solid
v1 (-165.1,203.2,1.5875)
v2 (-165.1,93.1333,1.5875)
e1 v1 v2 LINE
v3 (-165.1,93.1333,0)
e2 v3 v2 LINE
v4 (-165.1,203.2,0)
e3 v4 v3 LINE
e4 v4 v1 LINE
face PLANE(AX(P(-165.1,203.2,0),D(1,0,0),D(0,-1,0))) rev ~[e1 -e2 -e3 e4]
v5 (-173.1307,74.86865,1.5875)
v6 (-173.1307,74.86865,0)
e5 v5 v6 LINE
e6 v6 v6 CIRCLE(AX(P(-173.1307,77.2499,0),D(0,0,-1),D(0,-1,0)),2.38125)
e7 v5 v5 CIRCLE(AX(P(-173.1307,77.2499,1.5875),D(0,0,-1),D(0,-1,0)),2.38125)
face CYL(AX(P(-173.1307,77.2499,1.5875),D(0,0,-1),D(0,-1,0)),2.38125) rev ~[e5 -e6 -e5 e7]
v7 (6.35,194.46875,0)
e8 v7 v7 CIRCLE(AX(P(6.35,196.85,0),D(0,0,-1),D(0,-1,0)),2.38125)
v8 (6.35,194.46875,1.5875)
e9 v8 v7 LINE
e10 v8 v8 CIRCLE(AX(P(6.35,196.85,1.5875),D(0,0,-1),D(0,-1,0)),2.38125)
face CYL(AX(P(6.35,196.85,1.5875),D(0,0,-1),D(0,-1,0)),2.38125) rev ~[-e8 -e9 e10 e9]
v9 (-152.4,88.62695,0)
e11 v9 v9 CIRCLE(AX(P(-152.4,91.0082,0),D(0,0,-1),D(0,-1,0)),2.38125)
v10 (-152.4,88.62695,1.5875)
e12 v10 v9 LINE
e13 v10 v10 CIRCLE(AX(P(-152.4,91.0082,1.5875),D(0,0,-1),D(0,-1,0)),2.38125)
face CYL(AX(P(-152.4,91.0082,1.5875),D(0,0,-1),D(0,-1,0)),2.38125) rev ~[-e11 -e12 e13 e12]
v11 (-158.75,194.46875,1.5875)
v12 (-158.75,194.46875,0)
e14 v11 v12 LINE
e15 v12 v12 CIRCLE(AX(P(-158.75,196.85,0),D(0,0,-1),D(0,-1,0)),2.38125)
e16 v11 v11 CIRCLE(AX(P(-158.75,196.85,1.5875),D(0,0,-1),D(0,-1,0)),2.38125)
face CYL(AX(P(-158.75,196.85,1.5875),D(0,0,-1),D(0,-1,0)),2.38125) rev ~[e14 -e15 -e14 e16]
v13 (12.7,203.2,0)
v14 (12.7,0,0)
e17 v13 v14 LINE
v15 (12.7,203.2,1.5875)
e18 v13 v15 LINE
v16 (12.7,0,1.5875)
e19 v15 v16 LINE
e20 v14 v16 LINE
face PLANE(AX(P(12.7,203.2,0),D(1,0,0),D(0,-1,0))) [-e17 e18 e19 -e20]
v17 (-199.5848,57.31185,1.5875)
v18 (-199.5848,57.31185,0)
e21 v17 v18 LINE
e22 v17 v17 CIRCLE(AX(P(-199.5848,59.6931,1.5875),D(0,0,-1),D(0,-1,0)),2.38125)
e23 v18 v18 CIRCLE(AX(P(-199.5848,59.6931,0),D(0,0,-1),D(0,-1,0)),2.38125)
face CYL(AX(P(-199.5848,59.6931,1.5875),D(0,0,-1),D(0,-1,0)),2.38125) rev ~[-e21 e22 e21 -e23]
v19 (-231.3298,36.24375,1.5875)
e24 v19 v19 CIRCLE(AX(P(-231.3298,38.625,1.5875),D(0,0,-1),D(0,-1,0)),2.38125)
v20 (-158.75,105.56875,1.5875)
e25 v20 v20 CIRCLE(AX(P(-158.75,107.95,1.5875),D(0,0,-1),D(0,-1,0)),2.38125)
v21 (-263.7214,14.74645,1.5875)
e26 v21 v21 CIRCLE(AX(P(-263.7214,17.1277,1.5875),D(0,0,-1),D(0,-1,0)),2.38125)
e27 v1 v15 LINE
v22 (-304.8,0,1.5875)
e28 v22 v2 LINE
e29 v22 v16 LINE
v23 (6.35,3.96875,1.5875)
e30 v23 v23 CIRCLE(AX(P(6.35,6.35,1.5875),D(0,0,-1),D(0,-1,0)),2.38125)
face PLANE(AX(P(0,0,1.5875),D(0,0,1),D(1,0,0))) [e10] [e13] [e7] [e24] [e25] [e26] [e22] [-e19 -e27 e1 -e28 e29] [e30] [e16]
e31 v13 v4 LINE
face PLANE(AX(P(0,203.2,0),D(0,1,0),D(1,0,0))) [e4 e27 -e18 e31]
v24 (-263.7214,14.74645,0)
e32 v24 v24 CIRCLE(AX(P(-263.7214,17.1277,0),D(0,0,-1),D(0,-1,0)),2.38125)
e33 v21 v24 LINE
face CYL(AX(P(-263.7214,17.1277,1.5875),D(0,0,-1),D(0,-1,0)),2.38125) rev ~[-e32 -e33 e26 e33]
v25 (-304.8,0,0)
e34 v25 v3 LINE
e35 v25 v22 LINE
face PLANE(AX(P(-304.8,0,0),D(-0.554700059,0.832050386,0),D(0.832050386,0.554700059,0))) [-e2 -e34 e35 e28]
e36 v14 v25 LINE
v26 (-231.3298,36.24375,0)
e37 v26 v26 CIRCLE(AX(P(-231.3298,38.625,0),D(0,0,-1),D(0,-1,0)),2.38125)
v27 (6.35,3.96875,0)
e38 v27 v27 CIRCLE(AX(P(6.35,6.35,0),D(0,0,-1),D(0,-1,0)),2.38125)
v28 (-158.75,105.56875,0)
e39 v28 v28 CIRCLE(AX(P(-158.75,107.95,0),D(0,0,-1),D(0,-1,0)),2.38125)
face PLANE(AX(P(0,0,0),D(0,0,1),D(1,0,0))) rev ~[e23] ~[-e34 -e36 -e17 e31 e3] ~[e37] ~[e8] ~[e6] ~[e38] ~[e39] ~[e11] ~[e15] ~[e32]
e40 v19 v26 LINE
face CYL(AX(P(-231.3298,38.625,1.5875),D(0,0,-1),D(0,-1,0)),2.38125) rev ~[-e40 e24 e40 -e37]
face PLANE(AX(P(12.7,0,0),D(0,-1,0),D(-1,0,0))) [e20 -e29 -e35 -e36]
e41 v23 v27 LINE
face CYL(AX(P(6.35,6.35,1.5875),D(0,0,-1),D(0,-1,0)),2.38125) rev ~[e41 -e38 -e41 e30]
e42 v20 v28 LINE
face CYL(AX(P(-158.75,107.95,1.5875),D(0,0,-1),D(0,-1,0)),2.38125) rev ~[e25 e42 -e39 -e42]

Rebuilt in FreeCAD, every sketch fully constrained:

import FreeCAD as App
import Part
import Sketcher
from FreeCAD import Vector
Q = App.Units.Quantity

doc = App.newDocument("Part")
body = doc.addObject("PartDesign::Body", "Body")

sketch1 = doc.addObject("Sketcher::SketchObject", "Sketch")
body.addObject(sketch1)
sketch1.AttachmentSupport = (doc.XY_Plane, [""])
sketch1.MapMode = "FlatFace"
sketch1.addGeometry(Part.LineSegment(Vector(13, 203, 0), Vector(-165, 203, 0)), False)
sketch1.addGeometry(Part.LineSegment(Vector(-165, 203, 0), Vector(-165, 93, 0)), False)
sketch1.addGeometry(Part.LineSegment(Vector(-165, 93, 0), Vector(-305, 0, 0)), False)
sketch1.addGeometry(Part.LineSegment(Vector(-305, 0, 0), Vector(13, 0, 0)), False)
sketch1.addGeometry(Part.LineSegment(Vector(13, 0, 0), Vector(13, 203, 0)), False)
sketch1.addConstraint(Sketcher.Constraint("Coincident", 0, 2, 1, 1))
sketch1.addConstraint(Sketcher.Constraint("Coincident", 1, 2, 2, 1))
sketch1.addConstraint(Sketcher.Constraint("Coincident", 2, 2, 3, 1))
sketch1.addConstraint(Sketcher.Constraint("Coincident", 3, 2, 4, 1))
sketch1.addConstraint(Sketcher.Constraint("Coincident", 4, 2, 0, 1))
sketch1.addConstraint(Sketcher.Constraint("Horizontal", 0))
sketch1.addConstraint(Sketcher.Constraint("Vertical", 1))
sketch1.addConstraint(Sketcher.Constraint("Horizontal", 3))
sketch1.addConstraint(Sketcher.Constraint("Vertical", 4))
sketch1.addConstraint(Sketcher.Constraint("PointOnObject", 2, 2, -1))
sketch1.addConstraint(Sketcher.Constraint("DistanceY", 4, 1, 4, 2, Q("8 in")))
sketch1.addConstraint(Sketcher.Constraint("DistanceX", 2, 2, -1, 1, Q("12 in")))
sketch1.addConstraint(Sketcher.Constraint("DistanceX", -1, 1, 3, 2, Q("0.5 in")))
sketch1.addConstraint(Sketcher.Constraint("DistanceX", 0, 2, 0, 1, Q("7 in")))
sketch1.addConstraint(Sketcher.Constraint("Angle", 2, Q("-146.31 deg")))
pad1 = doc.addObject("PartDesign::Pad", "Pad")
body.addObject(pad1)
pad1.Profile = sketch1
pad1.Length = Q("0.0625 in")

sketch2 = doc.addObject("Sketcher::SketchObject", "Sketch001")
body.addObject(sketch2)
sketch2.AttachmentSupport = (doc.XY_Plane, [""])
sketch2.MapMode = "FlatFace"
sketch2.AttachmentOffset = App.Placement(Vector(0, 0, 0.0625 * 25.4), App.Rotation())
sketch2.addGeometry(Part.Circle(Vector(-263.7, 17.1, 0), Vector(0, 0, 1), 2.4), False)
sketch2.addGeometry(Part.Circle(Vector(-231.3, 38.6, 0), Vector(0, 0, 1), 2.4), False)
sketch2.addGeometry(Part.Circle(Vector(-199.6, 59.7, 0), Vector(0, 0, 1), 2.4), False)
sketch2.addGeometry(Part.Circle(Vector(-173.1, 77.2, 0), Vector(0, 0, 1), 2.4), False)
sketch2.addGeometry(Part.Circle(Vector(-152.4, 91, 0), Vector(0, 0, 1), 2.4), False)
sketch2.addGeometry(Part.Circle(Vector(-158.8, 108, 0), Vector(0, 0, 1), 2.4), False)
sketch2.addGeometry(Part.Circle(Vector(-158.8, 196.8, 0), Vector(0, 0, 1), 2.4), False)
sketch2.addGeometry(Part.Circle(Vector(6.3, 6.3, 0), Vector(0, 0, 1), 2.4), False)
sketch2.addGeometry(Part.Circle(Vector(6.3, 196.8, 0), Vector(0, 0, 1), 2.4), False)
sketch2.addConstraint(Sketcher.Constraint("Equal", 0, 1))
sketch2.addConstraint(Sketcher.Constraint("Equal", 1, 2))
sketch2.addConstraint(Sketcher.Constraint("Equal", 2, 3))
sketch2.addConstraint(Sketcher.Constraint("Equal", 3, 4))
sketch2.addConstraint(Sketcher.Constraint("Equal", 4, 5))
sketch2.addConstraint(Sketcher.Constraint("Equal", 5, 6))
sketch2.addConstraint(Sketcher.Constraint("Equal", 6, 7))
sketch2.addConstraint(Sketcher.Constraint("Equal", 7, 8))
sketch2.addConstraint(Sketcher.Constraint("Horizontal", 6, 3, 8, 3))
sketch2.addConstraint(Sketcher.Constraint("Vertical", 5, 3, 6, 3))
sketch2.addConstraint(Sketcher.Constraint("Vertical", 7, 3, 8, 3))
sketch2.addConstraint(Sketcher.Constraint("Diameter", 0, Q("0.1875 in")))
sketch2.addConstraint(Sketcher.Constraint("DistanceX", 4, 3, -1, 1, Q("6 in")))
sketch2.addConstraint(Sketcher.Constraint("DistanceY", 7, 3, 5, 3, Q("4 in")))
sketch2.addConstraint(Sketcher.Constraint("DistanceY", 5, 3, 6, 3, Q("3.5 in")))
sketch2.addConstraint(Sketcher.Constraint("DistanceX", 5, 3, 7, 3, Q("6.5 in")))
sketch2.addConstraint(Sketcher.Constraint("DistanceX", 5, 3, -1, 1, Q("6.25 in")))
sketch2.addConstraint(Sketcher.Constraint("DistanceY", -1, 1, 5, 3, Q("4.25 in")))
sketch2.addConstraint(Sketcher.Constraint("DistanceY", -1, 1, 4, 3, Q("3.583 in")))
sketch2.addConstraint(Sketcher.Constraint("DistanceX", 1, 3, 2, 3, Q("1.2498 in")))
sketch2.addConstraint(Sketcher.Constraint("DistanceY", 0, 3, 2, 3, Q("1.6758 in")))
sketch2.addConstraint(Sketcher.Constraint("DistanceX", 2, 3, 3, 3, Q("1.0415 in")))
sketch2.addConstraint(Sketcher.Constraint("DistanceX", 0, 3, -1, 1, Q("263.7214 mm")))
sketch2.addConstraint(Sketcher.Constraint("DistanceY", -1, 1, 0, 3, Q("17.1277 mm")))
sketch2.addConstraint(Sketcher.Constraint("DistanceX", 1, 3, -1, 1, Q("231.3298 mm")))
sketch2.addConstraint(Sketcher.Constraint("DistanceY", -1, 1, 1, 3, Q("38.625 mm")))
sketch2.addConstraint(Sketcher.Constraint("DistanceY", -1, 1, 3, 3, Q("77.25 mm")))
doc.recompute()
hole = doc.addObject("PartDesign::Hole", "Hole")
body.addObject(hole)
hole.Profile = sketch2
hole.ThreadType = "None"
hole.Diameter = Q("0.1875 in")
hole.DepthType = "ThroughAll"

doc.recompute()
